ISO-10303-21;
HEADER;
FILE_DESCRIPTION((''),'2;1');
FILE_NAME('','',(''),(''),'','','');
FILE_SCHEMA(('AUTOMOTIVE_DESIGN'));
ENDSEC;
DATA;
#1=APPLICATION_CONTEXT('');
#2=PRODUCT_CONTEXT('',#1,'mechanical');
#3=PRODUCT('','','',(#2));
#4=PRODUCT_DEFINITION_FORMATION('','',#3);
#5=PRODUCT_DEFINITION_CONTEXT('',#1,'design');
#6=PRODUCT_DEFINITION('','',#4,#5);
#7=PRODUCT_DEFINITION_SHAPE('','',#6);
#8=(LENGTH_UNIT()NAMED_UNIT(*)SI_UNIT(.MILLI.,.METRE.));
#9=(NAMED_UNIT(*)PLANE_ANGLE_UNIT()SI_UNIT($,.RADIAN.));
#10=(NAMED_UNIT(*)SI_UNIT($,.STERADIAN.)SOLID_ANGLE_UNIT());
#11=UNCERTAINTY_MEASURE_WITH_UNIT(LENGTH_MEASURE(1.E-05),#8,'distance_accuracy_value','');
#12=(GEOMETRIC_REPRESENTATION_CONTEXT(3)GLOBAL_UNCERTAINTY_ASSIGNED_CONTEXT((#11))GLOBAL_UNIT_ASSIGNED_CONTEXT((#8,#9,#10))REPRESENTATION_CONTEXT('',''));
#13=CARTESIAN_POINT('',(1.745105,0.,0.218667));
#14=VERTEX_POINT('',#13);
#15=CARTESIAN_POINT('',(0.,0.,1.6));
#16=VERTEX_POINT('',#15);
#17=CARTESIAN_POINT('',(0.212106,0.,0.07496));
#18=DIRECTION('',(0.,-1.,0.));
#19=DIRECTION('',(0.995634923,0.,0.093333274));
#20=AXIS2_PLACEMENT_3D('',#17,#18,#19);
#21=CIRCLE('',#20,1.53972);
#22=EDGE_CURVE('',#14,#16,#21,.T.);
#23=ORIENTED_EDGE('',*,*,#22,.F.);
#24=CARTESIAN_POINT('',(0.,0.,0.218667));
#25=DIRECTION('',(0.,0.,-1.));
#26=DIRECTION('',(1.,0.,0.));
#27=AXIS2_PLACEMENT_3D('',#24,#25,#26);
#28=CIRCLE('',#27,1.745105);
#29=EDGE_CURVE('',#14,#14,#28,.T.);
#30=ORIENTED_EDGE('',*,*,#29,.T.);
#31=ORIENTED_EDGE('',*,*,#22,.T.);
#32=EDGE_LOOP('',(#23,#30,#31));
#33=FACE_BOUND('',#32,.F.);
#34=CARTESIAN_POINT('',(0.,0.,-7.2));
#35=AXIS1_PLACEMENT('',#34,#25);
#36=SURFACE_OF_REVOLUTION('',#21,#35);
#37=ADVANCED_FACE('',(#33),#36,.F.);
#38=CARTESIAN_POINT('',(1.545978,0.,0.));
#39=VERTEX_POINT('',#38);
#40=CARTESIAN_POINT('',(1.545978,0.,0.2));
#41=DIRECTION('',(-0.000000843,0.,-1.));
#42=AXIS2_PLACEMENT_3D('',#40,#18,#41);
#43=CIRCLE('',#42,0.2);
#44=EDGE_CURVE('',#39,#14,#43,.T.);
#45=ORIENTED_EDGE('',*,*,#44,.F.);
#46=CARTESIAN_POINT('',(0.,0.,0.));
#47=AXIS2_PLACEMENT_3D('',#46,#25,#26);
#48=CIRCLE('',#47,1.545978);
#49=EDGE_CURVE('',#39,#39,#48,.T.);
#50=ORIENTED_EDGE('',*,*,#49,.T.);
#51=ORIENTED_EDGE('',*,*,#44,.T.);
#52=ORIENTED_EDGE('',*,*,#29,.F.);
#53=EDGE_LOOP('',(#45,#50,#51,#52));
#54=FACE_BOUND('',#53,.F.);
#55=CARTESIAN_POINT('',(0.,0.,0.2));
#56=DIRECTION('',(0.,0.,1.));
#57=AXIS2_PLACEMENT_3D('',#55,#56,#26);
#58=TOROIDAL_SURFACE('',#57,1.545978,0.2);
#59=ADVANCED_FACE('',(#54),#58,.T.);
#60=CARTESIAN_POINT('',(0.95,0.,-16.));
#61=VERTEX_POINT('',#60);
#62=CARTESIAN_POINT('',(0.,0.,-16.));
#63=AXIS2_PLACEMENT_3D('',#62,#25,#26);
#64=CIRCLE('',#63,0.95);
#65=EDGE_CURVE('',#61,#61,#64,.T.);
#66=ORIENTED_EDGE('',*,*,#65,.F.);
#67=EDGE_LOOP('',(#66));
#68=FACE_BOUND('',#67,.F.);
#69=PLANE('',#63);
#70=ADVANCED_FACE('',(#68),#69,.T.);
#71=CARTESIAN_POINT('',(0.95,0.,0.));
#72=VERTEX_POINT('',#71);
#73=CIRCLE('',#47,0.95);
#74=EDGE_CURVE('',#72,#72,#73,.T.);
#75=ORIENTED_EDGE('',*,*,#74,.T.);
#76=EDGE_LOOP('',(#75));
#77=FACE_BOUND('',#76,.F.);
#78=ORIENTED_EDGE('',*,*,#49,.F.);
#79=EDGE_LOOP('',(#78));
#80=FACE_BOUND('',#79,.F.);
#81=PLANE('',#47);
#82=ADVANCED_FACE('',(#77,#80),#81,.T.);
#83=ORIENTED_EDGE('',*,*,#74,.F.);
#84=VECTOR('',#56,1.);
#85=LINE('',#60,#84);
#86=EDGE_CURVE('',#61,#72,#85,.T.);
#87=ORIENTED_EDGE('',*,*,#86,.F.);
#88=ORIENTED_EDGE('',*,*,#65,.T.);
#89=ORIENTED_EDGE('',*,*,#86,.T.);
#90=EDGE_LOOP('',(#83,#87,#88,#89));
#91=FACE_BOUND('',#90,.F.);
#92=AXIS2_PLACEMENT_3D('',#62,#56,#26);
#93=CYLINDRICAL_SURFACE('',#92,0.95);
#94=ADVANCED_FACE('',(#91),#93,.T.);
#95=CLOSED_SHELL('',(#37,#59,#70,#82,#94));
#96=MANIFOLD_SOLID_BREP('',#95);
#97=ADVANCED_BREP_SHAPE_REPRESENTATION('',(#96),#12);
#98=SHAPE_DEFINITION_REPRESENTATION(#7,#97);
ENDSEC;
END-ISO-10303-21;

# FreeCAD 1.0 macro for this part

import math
import FreeCAD as App
import Part
import Sketcher
from FreeCAD import Vector

doc = App.newDocument("Part")
body = doc.addObject("PartDesign::Body", "Body")

# Sketch on XZ plane
sketch1 = body.newObject("Sketcher::SketchObject", "Sketch")
sketch1.AttachmentSupport = (doc.getObject("XZ_Plane"), [""])
sketch1.MapMode = "FlatFace"
sketch1.addGeometry([
    Part.LineSegment(Vector(0, 1.6, 0), Vector(0, -16, 0)),  # 0
    Part.LineSegment(Vector(0, -16, 0), Vector(0.95, -16, 0)),  # 1
    Part.LineSegment(Vector(0.95, -16, 0), Vector(0.95, 0, 0)),  # 2
    Part.LineSegment(Vector(0.95, 0, 0), Vector(1.55, 0, 0)),  # 3
    Part.ArcOfCircle(Part.Circle(Vector(1.55, 0.2, 0), Vector(0, 0, 1), 0.2), math.radians(-90), math.radians(5)),  # 4
    Part.ArcOfCircle(Part.Circle(Vector(0.21, 0.07, 0), Vector(0, 0, 1), 1.54), math.radians(5), math.radians(98)),  # 5
], False)
sketch1.addConstraint([
    Sketcher.Constraint("Coincident", 0, 2, 1, 1),
    Sketcher.Constraint("Coincident", 1, 2, 2, 1),
    Sketcher.Constraint("Coincident", 2, 2, 3, 1),
    Sketcher.Constraint("Tangent", 3, 2, 4, 1),
    Sketcher.Constraint("Coincident", 4, 2, 5, 1),
    Sketcher.Constraint("Coincident", 5, 2, 0, 1),
    Sketcher.Constraint("Vertical", 0),
    Sketcher.Constraint("Horizontal", 1),
    Sketcher.Constraint("Vertical", 2),
    Sketcher.Constraint("Horizontal", 3),
    Sketcher.Constraint("PointOnObject", 0, 2, -2),
    Sketcher.Constraint("PointOnObject", 2, 2, -1),
    Sketcher.Constraint("Radius", 4, 0.2),
    Sketcher.Constraint("DistanceY", 2, 1, 2, 2, 16.0),
    Sketcher.Constraint("DistanceY", 0, 2, 0, 1, 17.6),
    Sketcher.Constraint("DistanceX", 1, 1, 1, 2, 0.95),
    Sketcher.Constraint("Radius", 5, 1.53972),
    Sketcher.Constraint("DistanceX", 5, 3, 4, 2, 1.532999),
    Sketcher.Constraint("DistanceX", 3, 1, 3, 2, 0.595978),
])
revolution = body.newObject("PartDesign::Revolution", "Revolution")
revolution.Profile = sketch1
revolution.ReferenceAxis = (sketch1, ["V_Axis"])
revolution.Angle = 360

doc.recompute()
